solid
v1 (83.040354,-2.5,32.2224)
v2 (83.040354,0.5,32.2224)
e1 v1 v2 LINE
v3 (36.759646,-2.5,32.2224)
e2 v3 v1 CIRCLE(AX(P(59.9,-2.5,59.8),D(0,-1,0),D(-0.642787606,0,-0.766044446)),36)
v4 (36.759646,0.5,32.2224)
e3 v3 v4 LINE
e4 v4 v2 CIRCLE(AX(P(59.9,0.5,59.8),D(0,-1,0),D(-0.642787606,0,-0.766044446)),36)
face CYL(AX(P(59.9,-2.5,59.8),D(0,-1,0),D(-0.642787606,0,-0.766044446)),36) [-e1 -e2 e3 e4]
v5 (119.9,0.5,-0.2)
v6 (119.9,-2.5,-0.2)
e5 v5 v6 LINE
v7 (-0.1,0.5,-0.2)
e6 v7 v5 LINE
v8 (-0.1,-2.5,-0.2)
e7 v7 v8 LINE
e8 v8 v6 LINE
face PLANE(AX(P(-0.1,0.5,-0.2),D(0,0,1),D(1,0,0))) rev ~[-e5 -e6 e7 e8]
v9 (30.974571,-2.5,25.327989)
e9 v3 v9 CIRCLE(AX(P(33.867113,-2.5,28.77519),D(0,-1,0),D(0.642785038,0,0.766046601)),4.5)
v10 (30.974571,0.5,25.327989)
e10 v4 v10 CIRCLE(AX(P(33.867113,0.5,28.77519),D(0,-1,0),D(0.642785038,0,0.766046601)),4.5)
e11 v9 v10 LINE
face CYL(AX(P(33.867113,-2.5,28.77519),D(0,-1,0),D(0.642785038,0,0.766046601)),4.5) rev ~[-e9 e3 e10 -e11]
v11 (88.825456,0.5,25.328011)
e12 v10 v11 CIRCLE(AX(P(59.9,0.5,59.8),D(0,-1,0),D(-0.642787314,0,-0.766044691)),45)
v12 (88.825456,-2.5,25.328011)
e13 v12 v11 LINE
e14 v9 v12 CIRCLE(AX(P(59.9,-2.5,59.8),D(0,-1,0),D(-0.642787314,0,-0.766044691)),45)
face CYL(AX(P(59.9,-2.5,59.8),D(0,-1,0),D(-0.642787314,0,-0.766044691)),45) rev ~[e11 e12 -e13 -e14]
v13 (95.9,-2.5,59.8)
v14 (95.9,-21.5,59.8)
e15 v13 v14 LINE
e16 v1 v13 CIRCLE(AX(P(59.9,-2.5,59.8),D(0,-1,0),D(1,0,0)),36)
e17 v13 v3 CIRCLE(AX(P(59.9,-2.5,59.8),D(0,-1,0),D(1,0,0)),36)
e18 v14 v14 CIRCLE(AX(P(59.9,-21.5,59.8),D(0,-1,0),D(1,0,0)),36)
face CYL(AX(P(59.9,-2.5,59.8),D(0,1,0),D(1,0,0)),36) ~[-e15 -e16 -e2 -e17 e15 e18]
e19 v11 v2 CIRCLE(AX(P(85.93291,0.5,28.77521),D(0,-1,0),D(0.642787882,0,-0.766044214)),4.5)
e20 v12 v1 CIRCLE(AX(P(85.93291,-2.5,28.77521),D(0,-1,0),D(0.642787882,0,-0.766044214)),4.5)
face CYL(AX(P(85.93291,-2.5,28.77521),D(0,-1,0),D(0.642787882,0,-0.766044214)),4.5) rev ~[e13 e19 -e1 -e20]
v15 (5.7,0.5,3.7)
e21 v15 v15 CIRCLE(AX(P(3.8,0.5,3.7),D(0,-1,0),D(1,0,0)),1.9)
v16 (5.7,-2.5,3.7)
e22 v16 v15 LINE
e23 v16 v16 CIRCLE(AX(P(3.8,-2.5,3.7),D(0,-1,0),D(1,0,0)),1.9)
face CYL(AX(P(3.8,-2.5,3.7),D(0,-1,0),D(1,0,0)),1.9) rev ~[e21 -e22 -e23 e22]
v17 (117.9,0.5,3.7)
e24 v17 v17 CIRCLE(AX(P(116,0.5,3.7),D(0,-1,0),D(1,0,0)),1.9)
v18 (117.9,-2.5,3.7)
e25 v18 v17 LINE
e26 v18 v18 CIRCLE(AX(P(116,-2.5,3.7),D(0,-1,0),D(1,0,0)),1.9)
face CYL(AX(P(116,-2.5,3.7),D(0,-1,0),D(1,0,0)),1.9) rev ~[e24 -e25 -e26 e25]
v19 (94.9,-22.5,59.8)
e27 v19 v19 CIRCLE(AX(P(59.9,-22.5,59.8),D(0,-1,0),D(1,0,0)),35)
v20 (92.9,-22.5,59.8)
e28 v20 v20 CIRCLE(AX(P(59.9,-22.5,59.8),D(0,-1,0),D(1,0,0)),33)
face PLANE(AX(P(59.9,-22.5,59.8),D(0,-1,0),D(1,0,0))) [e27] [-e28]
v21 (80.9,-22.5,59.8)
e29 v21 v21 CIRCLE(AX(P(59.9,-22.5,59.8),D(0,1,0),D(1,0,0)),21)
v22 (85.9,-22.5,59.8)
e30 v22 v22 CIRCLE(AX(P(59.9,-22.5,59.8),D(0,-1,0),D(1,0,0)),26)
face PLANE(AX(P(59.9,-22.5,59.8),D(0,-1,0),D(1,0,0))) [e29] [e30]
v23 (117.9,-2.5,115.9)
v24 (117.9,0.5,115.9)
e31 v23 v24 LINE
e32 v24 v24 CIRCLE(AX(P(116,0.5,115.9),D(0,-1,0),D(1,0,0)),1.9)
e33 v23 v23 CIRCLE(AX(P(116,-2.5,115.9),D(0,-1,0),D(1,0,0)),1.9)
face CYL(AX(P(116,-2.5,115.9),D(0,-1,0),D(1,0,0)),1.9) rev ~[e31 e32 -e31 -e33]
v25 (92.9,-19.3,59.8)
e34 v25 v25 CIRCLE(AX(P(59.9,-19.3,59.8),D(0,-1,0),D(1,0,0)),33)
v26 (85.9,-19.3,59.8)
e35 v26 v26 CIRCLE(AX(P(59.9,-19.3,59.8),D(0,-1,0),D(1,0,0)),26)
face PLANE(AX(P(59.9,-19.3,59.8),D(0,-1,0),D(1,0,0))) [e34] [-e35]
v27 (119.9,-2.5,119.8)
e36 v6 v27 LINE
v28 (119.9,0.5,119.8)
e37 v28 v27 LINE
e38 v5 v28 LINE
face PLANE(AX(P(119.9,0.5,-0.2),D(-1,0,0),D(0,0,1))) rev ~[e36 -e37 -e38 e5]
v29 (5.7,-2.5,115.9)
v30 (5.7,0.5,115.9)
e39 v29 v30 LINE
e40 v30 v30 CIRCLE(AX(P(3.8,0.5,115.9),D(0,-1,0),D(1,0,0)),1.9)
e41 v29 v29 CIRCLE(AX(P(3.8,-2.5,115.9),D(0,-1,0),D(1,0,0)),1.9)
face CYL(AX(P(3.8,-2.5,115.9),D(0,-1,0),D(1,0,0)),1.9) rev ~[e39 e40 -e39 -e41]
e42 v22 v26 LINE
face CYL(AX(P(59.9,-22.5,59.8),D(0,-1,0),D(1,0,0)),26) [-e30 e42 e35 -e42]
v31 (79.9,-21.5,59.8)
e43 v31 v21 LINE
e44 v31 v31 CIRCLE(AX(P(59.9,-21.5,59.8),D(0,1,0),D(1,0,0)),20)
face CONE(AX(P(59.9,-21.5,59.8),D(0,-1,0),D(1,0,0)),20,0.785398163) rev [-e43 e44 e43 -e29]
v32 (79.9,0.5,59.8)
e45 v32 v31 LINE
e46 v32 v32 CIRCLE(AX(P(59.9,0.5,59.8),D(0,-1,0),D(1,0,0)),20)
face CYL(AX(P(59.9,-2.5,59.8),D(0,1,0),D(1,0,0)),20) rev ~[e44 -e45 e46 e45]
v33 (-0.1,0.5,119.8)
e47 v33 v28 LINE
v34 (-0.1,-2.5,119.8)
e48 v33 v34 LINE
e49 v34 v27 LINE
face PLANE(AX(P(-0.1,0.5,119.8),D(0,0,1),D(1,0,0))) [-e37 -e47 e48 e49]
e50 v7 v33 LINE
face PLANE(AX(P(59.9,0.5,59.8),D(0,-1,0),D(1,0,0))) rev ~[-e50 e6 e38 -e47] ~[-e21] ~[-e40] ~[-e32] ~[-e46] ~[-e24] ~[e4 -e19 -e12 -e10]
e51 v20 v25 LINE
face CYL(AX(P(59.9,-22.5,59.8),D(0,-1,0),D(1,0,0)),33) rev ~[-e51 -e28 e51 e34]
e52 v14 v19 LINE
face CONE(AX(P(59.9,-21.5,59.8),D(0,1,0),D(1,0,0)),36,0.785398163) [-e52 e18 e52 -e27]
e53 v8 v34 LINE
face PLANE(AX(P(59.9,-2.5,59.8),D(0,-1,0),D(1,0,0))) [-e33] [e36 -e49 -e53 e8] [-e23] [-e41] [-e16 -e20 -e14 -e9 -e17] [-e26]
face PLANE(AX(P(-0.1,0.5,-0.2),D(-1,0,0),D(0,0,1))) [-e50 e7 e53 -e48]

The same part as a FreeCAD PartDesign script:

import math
import FreeCAD as App
import Part
import Sketcher
Q = App.Units.Quantity


def edges_at(feature, points):
    """Names of the edges that pass closest to the given points."""
    edges = feature.Shape.Edges
    near = lambda p: min(range(len(edges)), key=lambda i: edges[i].distToShape(Part.Vertex(*p))[0])
    return sorted({f"Edge{near(p) + 1}" for p in points})


def add_polygon(sketch, points):
    """Adds a closed chain of lines whose ends are joined by coincident constraints."""
    first, n = sketch.GeometryCount, len(points)
    for a, b in zip(points, points[1:] + points[:1]):
        sketch.addGeometry(Part.LineSegment(App.Vector(*a, 0), App.Vector(*b, 0)), False)
    for i in range(n):
        sketch.addConstraint(Sketcher.Constraint("Coincident", first + i, 2, first + (i + 1) % n, 1))

doc = App.newDocument("Part")
body = doc.addObject("PartDesign::Body", "Body")

# Sketch on XZ plane
sketch1 = doc.addObject("Sketcher::SketchObject", "Sketch")
body.addObject(sketch1)
sketch1.AttachmentSupport = (doc.XZ_Plane, [""])
sketch1.MapMode = "FlatFace"
add_polygon(sketch1, [(0, 120), (0, 0), (120, 0), (120, 120)])  # lines 0-3
sketch1.addConstraint([
    Sketcher.Constraint("Vertical", 0),
    Sketcher.Constraint("Horizontal", 1),
    Sketcher.Constraint("Vertical", 2),
    Sketcher.Constraint("Horizontal", 3),
    Sketcher.Constraint("Coincident", 0, 2, -1, 1),
    Sketcher.Constraint("Equal", 3, 0),
    Sketcher.Constraint("DistanceX", 1, 1, 1, 2, Q("120 mm")),
])
pad1 = doc.addObject("PartDesign::Pad", "Pad")
body.addObject(pad1)
pad1.Profile = sketch1
pad1.Length = 3

# Sketch on XZ plane
sketch2 = doc.addObject("Sketcher::SketchObject", "Sketch001")
body.addObject(sketch2)
sketch2.AttachmentSupport = (doc.XZ_Plane, [""])
sketch2.MapMode = "FlatFace"
sketch2.AttachmentOffset = App.Placement(App.Vector(0, 0, 3), App.Rotation())
sketch2.addGeometry([
    Part.Circle(App.Vector(3.9, 3.9, 0), App.Vector(0, 0, 1), 1.9),
    Part.Circle(App.Vector(116.1, 3.9, 0), App.Vector(0, 0, 1), 1.9),
    Part.Circle(App.Vector(116.1, 116.1, 0), App.Vector(0, 0, 1), 1.9),
    Part.Circle(App.Vector(3.9, 116.1, 0), App.Vector(0, 0, 1), 1.9),
], False)
sketch2.addConstraint([
    Sketcher.Constraint("Equal", 0, 1),
    Sketcher.Constraint("Equal", 1, 2),
    Sketcher.Constraint("Equal", 2, 3),
    Sketcher.Constraint("Horizontal", 0, 3, 1, 3),
    Sketcher.Constraint("Horizontal", 2, 3, 3, 3),
    Sketcher.Constraint("Vertical", 1, 3, 2, 3),
    Sketcher.Constraint("Vertical", 0, 3, 3, 3),
    Sketcher.Constraint("Diameter", 0, Q("3.8 mm")),
    Sketcher.Constraint("DistanceX", -1, 1, 0, 3, Q("3.9 mm")),
    Sketcher.Constraint("DistanceY", -1, 1, 0, 3, Q("3.9 mm")),
    Sketcher.Constraint("DistanceX", -1, 1, 1, 3, Q("116.1 mm")),
    Sketcher.Constraint("DistanceY", -1, 1, 2, 3, Q("116.1 mm")),
])
pocket1 = doc.addObject("PartDesign::Pocket", "Pocket")
body.addObject(pocket1)
pocket1.Profile = sketch2
pocket1.Type = "ThroughAll"

# Sketch on XZ plane
sketch3 = doc.addObject("Sketcher::SketchObject", "Sketch002")
body.addObject(sketch3)
sketch3.AttachmentSupport = (doc.XZ_Plane, [""])
sketch3.MapMode = "FlatFace"
sketch3.AttachmentOffset = App.Placement(App.Vector(0, 0, 3), App.Rotation())
sketch3.addGeometry(Part.Circle(App.Vector(60, 60, 0), App.Vector(0, 0, 1), 20), False)
sketch3.addConstraint([
    Sketcher.Constraint("Diameter", 0, Q("40 mm")),
    Sketcher.Constraint("DistanceX", -1, 1, 0, 3, Q("60 mm")),
    Sketcher.Constraint("DistanceY", -1, 1, 0, 3, Q("60 mm")),
])
pocket2 = doc.addObject("PartDesign::Pocket", "Pocket001")
body.addObject(pocket2)
pocket2.Profile = sketch3
pocket2.Type = "ThroughAll"

# Sketch on XZ plane
sketch4 = doc.addObject("Sketcher::SketchObject", "Sketch003")
body.addObject(sketch4)
sketch4.AttachmentSupport = (doc.XZ_Plane, [""])
sketch4.MapMode = "FlatFace"
sketch4.AttachmentOffset = App.Placement(App.Vector(0, 0, 3), App.Rotation())
sketch4.addGeometry(Part.Circle(App.Vector(60, 60, 0), App.Vector(0, 0, 1), 36), False)
sketch4.addConstraint([
    Sketcher.Constraint("Diameter", 0, Q("72 mm")),
    Sketcher.Constraint("DistanceX", -1, 1, 0, 3, Q("60 mm")),
    Sketcher.Constraint("DistanceY", -1, 1, 0, 3, Q("60 mm")),
])
pad2 = doc.addObject("PartDesign::Pad", "Pad001")
body.addObject(pad2)
pad2.Profile = sketch4
pad2.Length = 20

# Sketch on XZ plane
sketch5 = doc.addObject("Sketcher::SketchObject", "Sketch004")
body.addObject(sketch5)
sketch5.AttachmentSupport = (doc.XZ_Plane, [""])
sketch5.MapMode = "FlatFace"
sketch5.AttachmentOffset = App.Placement(App.Vector(0, 0, 3), App.Rotation())
sketch5.addGeometry(Part.Circle(App.Vector(60, 60, 0), App.Vector(0, 0, 1), 20), False)
sketch5.addConstraint([
    Sketcher.Constraint("Diameter", 0, Q("40 mm")),
    Sketcher.Constraint("DistanceX", -1, 1, 0, 3, Q("60 mm")),
    Sketcher.Constraint("DistanceY", -1, 1, 0, 3, Q("60 mm")),
])
pocket3 = doc.addObject("PartDesign::Pocket", "Pocket002")
body.addObject(pocket3)
pocket3.Profile = sketch5
pocket3.Type = "ThroughAll"
pocket3.Reversed = True

# Sketch on XZ plane
sketch6 = doc.addObject("Sketcher::SketchObject", "Sketch005")
body.addObject(sketch6)
sketch6.AttachmentSupport = (doc.XZ_Plane, [""])
sketch6.MapMode = "FlatFace"
sketch6.AttachmentOffset = App.Placement(App.Vector(0, 0, 23), App.Rotation())
sketch6.addGeometry([
    Part.Circle(App.Vector(60, 60, 0), App.Vector(0, 0, 1), 33),
    Part.Circle(App.Vector(60, 60, 0), App.Vector(0, 0, 1), 26),
], False)
sketch6.addConstraint([
    Sketcher.Constraint("Coincident", 1, 3, 0, 3),
    Sketcher.Constraint("Diameter", 0, Q("66 mm")),
    Sketcher.Constraint("Diameter", 1, Q("52 mm")),
    Sketcher.Constraint("DistanceX", -1, 1, 0, 3, Q("60 mm")),
    Sketcher.Constraint("DistanceY", -1, 1, 0, 3, Q("60 mm")),
])
pocket4 = doc.addObject("PartDesign::Pocket", "Pocket003")
body.addObject(pocket4)
pocket4.Profile = sketch6
pocket4.Length = 3.2
doc.recompute()

chamfer = doc.addObject("PartDesign::Chamfer", "Chamfer")
body.addObject(chamfer)
chamfer.Base = (pocket4, edges_at(pocket4, [(40, -23, 60)]))
chamfer.Size = 1
doc.recompute()

chamfer2 = doc.addObject("PartDesign::Chamfer", "Chamfer001")
body.addObject(chamfer2)
chamfer2.Base = (chamfer, edges_at(chamfer, [(24, -23, 60)]))
chamfer2.Size = 1

# Sketch on XZ plane
sketch7 = doc.addObject("Sketcher::SketchObject", "Sketch006")
body.addObject(sketch7)
sketch7.AttachmentSupport = (doc.XZ_Plane, [""])
sketch7.MapMode = "FlatFace"
sketch7.AttachmentOffset = App.Placement(App.Vector(0, 0, 3), App.Rotation())
sketch7.addGeometry([
    Part.ArcOfCircle(Part.Circle(App.Vector(60, 60, 0), App.Vector(0, 0, 1), 36), math.radians(-130), math.radians(-50)),
    Part.ArcOfCircle(Part.Circle(App.Vector(34, 29, 0), App.Vector(0, 0, 1), 4.5), math.radians(50), math.radians(230)),
    Part.ArcOfCircle(Part.Circle(App.Vector(60, 60, 0), App.Vector(0, 0, 1), 45), math.radians(-130), math.radians(-50)),
    Part.ArcOfCircle(Part.Circle(App.Vector(86, 29, 0), App.Vector(0, 0, 1), 4.5), math.radians(-50), math.radians(130)),
], False)
sketch7.addConstraint([
    Sketcher.Constraint("Coincident", 0, 1, 1, 1),
    Sketcher.Constraint("Tangent", 1, 2, 2, 1),
    Sketcher.Constraint("Tangent", 2, 2, 3, 1),
    Sketcher.Constraint("Coincident", 3, 2, 0, 2),
    Sketcher.Constraint("Coincident", 2, 3, 0, 3),
    Sketcher.Constraint("Horizontal", 0, 1, 3, 2),
    Sketcher.Constraint("Radius", 0, Q("36 mm")),
    Sketcher.Constraint("Radius", 2, Q("45 mm")),
    Sketcher.Constraint("DistanceX", -1, 1, 0, 3, Q("60 mm")),
    Sketcher.Constraint("DistanceY", -1, 1, 0, 3, Q("60 mm")),
    Sketcher.Constraint("DistanceY", -1, 1, 0, 1, Q("32.4224 mm")),
    Sketcher.Constraint("DistanceY", 1, 2, 1, 3, Q("3.447201 mm")),
    Sketcher.Constraint("DistanceY", 2, 2, 3, 3, Q("3.447199 mm")),
])
pocket5 = doc.addObject("PartDesign::Pocket", "Pocket004")
body.addObject(pocket5)
pocket5.Profile = sketch7
pocket5.Type = "ThroughAll"
body2 = doc.addObject("PartDesign::Body", "Body001")
doc.recompute()

body.Placement = App.Placement(App.Vector(-0.1, 0.5, -0.2), App.Rotation(App.Vector(0, 0, 1), 0))
boolean = doc.addObject("PartDesign::Boolean", "Boolean")
body2.addObject(boolean)
boolean.Type = "Fuse"
boolean.addObjects([body])

doc.recompute()
